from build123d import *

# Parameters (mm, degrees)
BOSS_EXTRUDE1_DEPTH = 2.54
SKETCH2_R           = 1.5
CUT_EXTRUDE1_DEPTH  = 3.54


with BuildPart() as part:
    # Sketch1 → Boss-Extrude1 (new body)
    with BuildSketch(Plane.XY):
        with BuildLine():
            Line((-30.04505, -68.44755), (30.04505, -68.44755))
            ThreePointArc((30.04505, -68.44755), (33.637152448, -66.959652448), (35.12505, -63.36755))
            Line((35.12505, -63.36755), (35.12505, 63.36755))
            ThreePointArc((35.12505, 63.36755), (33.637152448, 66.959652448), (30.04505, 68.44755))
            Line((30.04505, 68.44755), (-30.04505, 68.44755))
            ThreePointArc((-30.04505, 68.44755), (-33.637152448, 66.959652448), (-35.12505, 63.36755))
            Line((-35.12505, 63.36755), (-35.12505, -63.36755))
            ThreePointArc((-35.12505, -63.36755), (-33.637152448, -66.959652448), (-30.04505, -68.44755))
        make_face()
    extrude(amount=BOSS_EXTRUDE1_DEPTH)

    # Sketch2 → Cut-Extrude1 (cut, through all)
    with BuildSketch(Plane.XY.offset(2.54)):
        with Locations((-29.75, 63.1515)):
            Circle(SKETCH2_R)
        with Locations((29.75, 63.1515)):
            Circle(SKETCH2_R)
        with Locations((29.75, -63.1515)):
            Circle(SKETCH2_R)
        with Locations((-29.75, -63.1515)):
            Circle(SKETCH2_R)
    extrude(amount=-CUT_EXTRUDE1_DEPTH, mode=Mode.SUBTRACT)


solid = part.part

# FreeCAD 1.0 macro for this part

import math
import FreeCAD as App
import Part
import Sketcher
from FreeCAD import Vector
Q = App.Units.Quantity

doc = App.newDocument("Part")
body = doc.addObject("PartDesign::Body", "Body")

# Sketch on XY plane
sketch1 = body.newObject("Sketcher::SketchObject", "Sketch")
sketch1.AttachmentSupport = (doc.getObject("XY_Plane"), [""])
sketch1.MapMode = "FlatFace"
sketch1.addGeometry([
    Part.LineSegment(Vector(-30.04505, -68.44755, 0), Vector(30.04505, -68.44755, 0)),  # 0
    Part.ArcOfCircle(Part.Circle(Vector(30.04505, -63.36755, 0), Vector(0, 0, 1), 5.08), math.radians(-90), math.radians(0)),  # 1
    Part.LineSegment(Vector(35.12505, -63.36755, 0), Vector(35.12505, 63.36755, 0)),  # 2
    Part.ArcOfCircle(Part.Circle(Vector(30.04505, 63.36755, 0), Vector(0, 0, 1), 5.08), math.radians(0), math.radians(90)),  # 3
    Part.LineSegment(Vector(30.04505, 68.44755, 0), Vector(-30.04505, 68.44755, 0)),  # 4
    Part.ArcOfCircle(Part.Circle(Vector(-30.04505, 63.36755, 0), Vector(0, 0, 1), 5.08), math.radians(90), math.radians(180)),  # 5
    Part.LineSegment(Vector(-35.12505, 63.36755, 0), Vector(-35.12505, -63.36755, 0)),  # 6
    Part.ArcOfCircle(Part.Circle(Vector(-30.04505, -63.36755, 0), Vector(0, 0, 1), 5.08), math.radians(-180), math.radians(-90)),  # 7
], False)
sketch1.addConstraint([
    Sketcher.Constraint("Tangent", 0, 2, 1, 1),
    Sketcher.Constraint("Tangent", 1, 2, 2, 1),
    Sketcher.Constraint("Tangent", 2, 2, 3, 1),
    Sketcher.Constraint("Tangent", 3, 2, 4, 1),
    Sketcher.Constraint("Tangent", 4, 2, 5, 1),
    Sketcher.Constraint("Tangent", 5, 2, 6, 1),
    Sketcher.Constraint("Tangent", 6, 2, 7, 1),
    Sketcher.Constraint("Tangent", 7, 2, 0, 1),
    Sketcher.Constraint("Horizontal", 0),
    Sketcher.Constraint("Vertical", 2),
    Sketcher.Constraint("Horizontal", 4),
    Sketcher.Constraint("Vertical", 6),
    Sketcher.Constraint("Equal", 1, 3),
    Sketcher.Constraint("Equal", 3, 5),
    Sketcher.Constraint("Equal", 5, 7),
    Sketcher.Constraint("Symmetric", 1, 3, 5, 3, -1, 1),
    Sketcher.Constraint("Radius", 1, Q("0.2 in")),
    Sketcher.Constraint("DistanceX", 0, 1, 0, 2, Q("60.0901 mm")),
    Sketcher.Constraint("DistanceY", 2, 1, 2, 2, Q("126.7351 mm")),
])
pad1 = body.newObject("PartDesign::Pad", "Pad")
pad1.Profile = sketch1
pad1.Length = Q("0.1 in")

# Sketch on XY plane
sketch2 = body.newObject("Sketcher::SketchObject", "Sketch001")
sketch2.AttachmentSupport = (doc.getObject("XY_Plane"), [""])
sketch2.MapMode = "FlatFace"
sketch2.AttachmentOffset = App.Placement(Vector(0, 0, 0.1 * 25.4), App.Rotation())
sketch2.addGeometry([
    Part.Circle(Vector(-29.75, 63.1515, 0), Vector(0, 0, 1), 1.5),
    Part.Circle(Vector(29.75, 63.1515, 0), Vector(0, 0, 1), 1.5),
    Part.Circle(Vector(29.75, -63.1515, 0), Vector(0, 0, 1), 1.5),
    Part.Circle(Vector(-29.75, -63.1515, 0), Vector(0, 0, 1), 1.5),
], False)
sketch2.addConstraint([
    Sketcher.Constraint("Equal", 0, 1),
    Sketcher.Constraint("Equal", 1, 2),
    Sketcher.Constraint("Equal", 2, 3),
    Sketcher.Constraint("Symmetric", 0, 3, 2, 3, -1, 1),
    Sketcher.Constraint("Symmetric", 1, 3, 3, 3, -1, 1),
    Sketcher.Constraint("Symmetric", 0, 3, 1, 3, -2),
    Sketcher.Constraint("Diameter", 0, Q("3 mm")),
    Sketcher.Constraint("DistanceX", 0, 3, -1, 1, Q("29.75 mm")),
    Sketcher.Constraint("DistanceY", -1, 1, 0, 3, Q("63.1515 mm")),
])
pocket1 = body.newObject("PartDesign::Pocket", "Pocket")
pocket1.Profile = sketch2
pocket1.Type = "ThroughAll"

doc.recompute()
